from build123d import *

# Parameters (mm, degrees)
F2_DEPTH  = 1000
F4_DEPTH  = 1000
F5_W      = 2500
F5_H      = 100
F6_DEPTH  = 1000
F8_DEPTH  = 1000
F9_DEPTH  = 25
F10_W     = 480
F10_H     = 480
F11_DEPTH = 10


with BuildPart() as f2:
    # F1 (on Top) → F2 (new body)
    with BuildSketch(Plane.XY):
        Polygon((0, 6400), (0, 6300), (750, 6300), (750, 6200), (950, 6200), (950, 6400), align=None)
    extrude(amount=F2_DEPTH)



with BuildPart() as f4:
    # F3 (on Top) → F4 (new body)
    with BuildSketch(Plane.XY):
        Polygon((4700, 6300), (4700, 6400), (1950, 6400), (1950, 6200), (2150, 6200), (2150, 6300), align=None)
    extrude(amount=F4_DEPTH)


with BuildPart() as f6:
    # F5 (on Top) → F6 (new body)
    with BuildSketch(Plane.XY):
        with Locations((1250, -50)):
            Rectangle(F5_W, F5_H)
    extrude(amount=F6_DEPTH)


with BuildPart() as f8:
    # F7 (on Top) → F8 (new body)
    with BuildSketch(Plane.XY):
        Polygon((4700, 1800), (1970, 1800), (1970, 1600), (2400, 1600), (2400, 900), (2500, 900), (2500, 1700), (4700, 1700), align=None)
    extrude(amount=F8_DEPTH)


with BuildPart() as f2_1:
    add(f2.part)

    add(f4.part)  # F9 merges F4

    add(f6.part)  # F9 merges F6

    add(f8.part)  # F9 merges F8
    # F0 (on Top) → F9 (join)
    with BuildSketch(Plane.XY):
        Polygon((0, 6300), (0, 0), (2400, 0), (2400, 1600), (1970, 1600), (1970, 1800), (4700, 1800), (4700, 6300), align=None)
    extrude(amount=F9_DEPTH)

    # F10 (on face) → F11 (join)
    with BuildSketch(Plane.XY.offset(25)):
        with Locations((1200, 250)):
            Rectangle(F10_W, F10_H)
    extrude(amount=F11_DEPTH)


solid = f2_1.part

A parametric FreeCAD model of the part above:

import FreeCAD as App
import Part
import Sketcher
from FreeCAD import Vector


def add_polygon(sketch, points):
    """Adds a closed chain of lines whose ends are joined by coincident constraints."""
    first, n = sketch.GeometryCount, len(points)
    for a, b in zip(points, points[1:] + points[:1]):
        sketch.addGeometry(Part.LineSegment(App.Vector(*a, 0), App.Vector(*b, 0)), False)
    for i in range(n):
        sketch.addConstraint(Sketcher.Constraint("Coincident", first + i, 2, first + (i + 1) % n, 1))

doc = App.newDocument("Part")
body = doc.addObject("PartDesign::Body", "Body")

sketch1 = doc.addObject("Sketcher::SketchObject", "Sketch")
body.addObject(sketch1)
sketch1.AttachmentSupport = (doc.XY_Plane, [""])
sketch1.MapMode = "FlatFace"
add_polygon(sketch1, [(0, 6400), (0, 6300), (750, 6300), (750, 6200), (950, 6200), (950, 6400)])
sketch1.addConstraint([
    Sketcher.Constraint("Vertical", 0),
    Sketcher.Constraint("Horizontal", 1),
    Sketcher.Constraint("Vertical", 2),
    Sketcher.Constraint("Horizontal", 3),
    Sketcher.Constraint("Vertical", 4),
    Sketcher.Constraint("Horizontal", 5),
    Sketcher.Constraint("PointOnObject", 0, 2, -2),
    Sketcher.Constraint("Equal", 0, 2),
    Sketcher.Constraint("Equal", 3, 4),
    Sketcher.Constraint("DistanceX", 1, 1, 1, 2, 750.0),
    Sketcher.Constraint("DistanceX", 3, 1, 3, 2, 200.0),
    Sketcher.Constraint("DistanceY", -1, 1, 0, 2, 6300.0),
])
pad1 = doc.addObject("PartDesign::Pad", "Pad")
body.addObject(pad1)
pad1.Profile = sketch1
pad1.Length = 1000
body2 = doc.addObject("PartDesign::Body", "Body001")

sketch2 = doc.addObject("Sketcher::SketchObject", "Sketch001")
body2.addObject(sketch2)
sketch2.AttachmentSupport = (doc.getObject("XY_Plane001"), [""])
sketch2.MapMode = "FlatFace"
add_polygon(sketch2, [(4700, 6300), (4700, 6400), (1950, 6400), (1950, 6200), (2150, 6200), (2150, 6300)])
sketch2.addConstraint([
    Sketcher.Constraint("Vertical", 0),
    Sketcher.Constraint("Horizontal", 1),
    Sketcher.Constraint("Vertical", 2),
    Sketcher.Constraint("Horizontal", 3),
    Sketcher.Constraint("Vertical", 4),
    Sketcher.Constraint("Horizontal", 5),
    Sketcher.Constraint("Equal", 3, 2),
    Sketcher.Constraint("Equal", 0, 4),
    Sketcher.Constraint("DistanceX", 1, 2, 1, 1, 2750.0),
    Sketcher.Constraint("DistanceX", 3, 1, 3, 2, 200.0),
    Sketcher.Constraint("DistanceX", -1, 1, 0, 2, 4700.0),
    Sketcher.Constraint("DistanceY", -1, 1, 0, 2, 6400.0),
])
pad2 = doc.addObject("PartDesign::Pad", "Pad001")
body2.addObject(pad2)
pad2.Profile = sketch2
pad2.Length = 1000
body3 = doc.addObject("PartDesign::Body", "Body002")

sketch3 = doc.addObject("Sketcher::SketchObject", "Sketch002")
body3.addObject(sketch3)
sketch3.AttachmentSupport = (doc.getObject("XY_Plane002"), [""])
sketch3.MapMode = "FlatFace"
add_polygon(sketch3, [(0, 0), (0, -100), (2500, -100), (2500, 0)])
sketch3.addConstraint([
    Sketcher.Constraint("Vertical", 0),
    Sketcher.Constraint("Horizontal", 1),
    Sketcher.Constraint("Vertical", 2),
    Sketcher.Constraint("Horizontal", 3),
    Sketcher.Constraint("Coincident", 3, 2, -1, 1),
    Sketcher.Constraint("DistanceX", 1, 1, 1, 2, 2500.0),
    Sketcher.Constraint("DistanceY", 0, 2, 0, 1, 100.0),
])
pad3 = doc.addObject("PartDesign::Pad", "Pad002")
body3.addObject(pad3)
pad3.Profile = sketch3
pad3.Length = 1000
body4 = doc.addObject("PartDesign::Body", "Body003")

sketch4 = doc.addObject("Sketcher::SketchObject", "Sketch003")
body4.addObject(sketch4)
sketch4.AttachmentSupport = (doc.getObject("XY_Plane003"), [""])
sketch4.MapMode = "FlatFace"
add_polygon(sketch4, [(4700, 1800), (1970, 1800), (1970, 1600), (2400, 1600), (2400, 900), (2500, 900), (2500, 1700), (4700, 1700)])
sketch4.addConstraint([
    Sketcher.Constraint("Horizontal", 0),
    Sketcher.Constraint("Vertical", 1),
    Sketcher.Constraint("Horizontal", 2),
    Sketcher.Constraint("Vertical", 3),
    Sketcher.Constraint("Horizontal", 4),
    Sketcher.Constraint("Vertical", 5),
    Sketcher.Constraint("Horizontal", 6),
    Sketcher.Constraint("Vertical", 7),
    Sketcher.Constraint("Equal", 4, 7),
    Sketcher.Constraint("DistanceX", 0, 2, 0, 1, 2730.0),
    Sketcher.Constraint("DistanceX", 2, 1, 2, 2, 430.0),
    Sketcher.Constraint("DistanceX", 4, 1, 4, 2, 100.0),
    Sketcher.Constraint("DistanceY", 1, 2, 1, 1, 200.0),
    Sketcher.Constraint("DistanceY", 3, 2, 3, 1, 700.0),
    Sketcher.Constraint("DistanceX", -1, 1, 0, 2, 1970.0),
    Sketcher.Constraint("DistanceY", -1, 1, 0, 2, 1800.0),
])
pad4 = doc.addObject("PartDesign::Pad", "Pad003")
body4.addObject(pad4)
pad4.Profile = sketch4
pad4.Length = 1000
body.AllowCompound = True
doc.recompute()

boolean = doc.addObject("PartDesign::Boolean", "Boolean")
body.addObject(boolean)
boolean.Type = "Fuse"
boolean.addObjects([body2])
doc.recompute()

boolean2 = doc.addObject("PartDesign::Boolean", "Boolean001")
body.addObject(boolean2)
boolean2.Type = "Fuse"
boolean2.addObjects([body3])
doc.recompute()

boolean3 = doc.addObject("PartDesign::Boolean", "Boolean002")
body.addObject(boolean3)
boolean3.Type = "Fuse"
boolean3.addObjects([body4])

sketch5 = doc.addObject("Sketcher::SketchObject", "Sketch004")
body.addObject(sketch5)
sketch5.AttachmentSupport = (doc.XY_Plane, [""])
sketch5.MapMode = "FlatFace"
add_polygon(sketch5, [(0, 6300), (0, 0), (2400, 0), (2400, 1600), (1970, 1600), (1970, 1800), (4700, 1800), (4700, 6300)])
sketch5.addConstraint([
    Sketcher.Constraint("Vertical", 0),
    Sketcher.Constraint("Horizontal", 1),
    Sketcher.Constraint("Vertical", 2),
    Sketcher.Constraint("Horizontal", 3),
    Sketcher.Constraint("Vertical", 4),
    Sketcher.Constraint("Horizontal", 5),
    Sketcher.Constraint("Vertical", 6),
    Sketcher.Constraint("Horizontal", 7),
    Sketcher.Constraint("Coincident", 0, 2, -1, 1),
    Sketcher.Constraint("DistanceX", 1, 1, 1, 2, 2400.0),
    Sketcher.Constraint("DistanceX", 3, 2, 3, 1, 430.0),
    Sketcher.Constraint("DistanceX", 5, 1, 5, 2, 2730.0),
    Sketcher.Constraint("DistanceY", 0, 2, 0, 1, 6300.0),
    Sketcher.Constraint("DistanceY", 2, 1, 2, 2, 1600.0),
    Sketcher.Constraint("DistanceY", 4, 1, 4, 2, 200.0),
])
pad5 = doc.addObject("PartDesign::Pad", "Pad004")
body.addObject(pad5)
pad5.Profile = sketch5
pad5.Length = 25

sketch6 = doc.addObject("Sketcher::SketchObject", "Sketch005")
body.addObject(sketch6)
sketch6.AttachmentSupport = (doc.XY_Plane, [""])
sketch6.MapMode = "FlatFace"
sketch6.AttachmentOffset = App.Placement(Vector(0, 0, 25), App.Rotation())
add_polygon(sketch6, [(960, 490), (960, 10), (1440, 10), (1440, 490)])
sketch6.addConstraint([
    Sketcher.Constraint("Vertical", 0),
    Sketcher.Constraint("Horizontal", 1),
    Sketcher.Constraint("Vertical", 2),
    Sketcher.Constraint("Horizontal", 3),
    Sketcher.Constraint("Equal", 3, 0),
    Sketcher.Constraint("DistanceX", 1, 1, 1, 2, 480.0),
    Sketcher.Constraint("DistanceX", -1, 1, 0, 2, 960.0),
    Sketcher.Constraint("DistanceY", -1, 1, 0, 2, 10.0),
])
pad6 = doc.addObject("PartDesign::Pad", "Pad005")
body.addObject(pad6)
pad6.Profile = sketch6
pad6.Length = 10

doc.recompute()
